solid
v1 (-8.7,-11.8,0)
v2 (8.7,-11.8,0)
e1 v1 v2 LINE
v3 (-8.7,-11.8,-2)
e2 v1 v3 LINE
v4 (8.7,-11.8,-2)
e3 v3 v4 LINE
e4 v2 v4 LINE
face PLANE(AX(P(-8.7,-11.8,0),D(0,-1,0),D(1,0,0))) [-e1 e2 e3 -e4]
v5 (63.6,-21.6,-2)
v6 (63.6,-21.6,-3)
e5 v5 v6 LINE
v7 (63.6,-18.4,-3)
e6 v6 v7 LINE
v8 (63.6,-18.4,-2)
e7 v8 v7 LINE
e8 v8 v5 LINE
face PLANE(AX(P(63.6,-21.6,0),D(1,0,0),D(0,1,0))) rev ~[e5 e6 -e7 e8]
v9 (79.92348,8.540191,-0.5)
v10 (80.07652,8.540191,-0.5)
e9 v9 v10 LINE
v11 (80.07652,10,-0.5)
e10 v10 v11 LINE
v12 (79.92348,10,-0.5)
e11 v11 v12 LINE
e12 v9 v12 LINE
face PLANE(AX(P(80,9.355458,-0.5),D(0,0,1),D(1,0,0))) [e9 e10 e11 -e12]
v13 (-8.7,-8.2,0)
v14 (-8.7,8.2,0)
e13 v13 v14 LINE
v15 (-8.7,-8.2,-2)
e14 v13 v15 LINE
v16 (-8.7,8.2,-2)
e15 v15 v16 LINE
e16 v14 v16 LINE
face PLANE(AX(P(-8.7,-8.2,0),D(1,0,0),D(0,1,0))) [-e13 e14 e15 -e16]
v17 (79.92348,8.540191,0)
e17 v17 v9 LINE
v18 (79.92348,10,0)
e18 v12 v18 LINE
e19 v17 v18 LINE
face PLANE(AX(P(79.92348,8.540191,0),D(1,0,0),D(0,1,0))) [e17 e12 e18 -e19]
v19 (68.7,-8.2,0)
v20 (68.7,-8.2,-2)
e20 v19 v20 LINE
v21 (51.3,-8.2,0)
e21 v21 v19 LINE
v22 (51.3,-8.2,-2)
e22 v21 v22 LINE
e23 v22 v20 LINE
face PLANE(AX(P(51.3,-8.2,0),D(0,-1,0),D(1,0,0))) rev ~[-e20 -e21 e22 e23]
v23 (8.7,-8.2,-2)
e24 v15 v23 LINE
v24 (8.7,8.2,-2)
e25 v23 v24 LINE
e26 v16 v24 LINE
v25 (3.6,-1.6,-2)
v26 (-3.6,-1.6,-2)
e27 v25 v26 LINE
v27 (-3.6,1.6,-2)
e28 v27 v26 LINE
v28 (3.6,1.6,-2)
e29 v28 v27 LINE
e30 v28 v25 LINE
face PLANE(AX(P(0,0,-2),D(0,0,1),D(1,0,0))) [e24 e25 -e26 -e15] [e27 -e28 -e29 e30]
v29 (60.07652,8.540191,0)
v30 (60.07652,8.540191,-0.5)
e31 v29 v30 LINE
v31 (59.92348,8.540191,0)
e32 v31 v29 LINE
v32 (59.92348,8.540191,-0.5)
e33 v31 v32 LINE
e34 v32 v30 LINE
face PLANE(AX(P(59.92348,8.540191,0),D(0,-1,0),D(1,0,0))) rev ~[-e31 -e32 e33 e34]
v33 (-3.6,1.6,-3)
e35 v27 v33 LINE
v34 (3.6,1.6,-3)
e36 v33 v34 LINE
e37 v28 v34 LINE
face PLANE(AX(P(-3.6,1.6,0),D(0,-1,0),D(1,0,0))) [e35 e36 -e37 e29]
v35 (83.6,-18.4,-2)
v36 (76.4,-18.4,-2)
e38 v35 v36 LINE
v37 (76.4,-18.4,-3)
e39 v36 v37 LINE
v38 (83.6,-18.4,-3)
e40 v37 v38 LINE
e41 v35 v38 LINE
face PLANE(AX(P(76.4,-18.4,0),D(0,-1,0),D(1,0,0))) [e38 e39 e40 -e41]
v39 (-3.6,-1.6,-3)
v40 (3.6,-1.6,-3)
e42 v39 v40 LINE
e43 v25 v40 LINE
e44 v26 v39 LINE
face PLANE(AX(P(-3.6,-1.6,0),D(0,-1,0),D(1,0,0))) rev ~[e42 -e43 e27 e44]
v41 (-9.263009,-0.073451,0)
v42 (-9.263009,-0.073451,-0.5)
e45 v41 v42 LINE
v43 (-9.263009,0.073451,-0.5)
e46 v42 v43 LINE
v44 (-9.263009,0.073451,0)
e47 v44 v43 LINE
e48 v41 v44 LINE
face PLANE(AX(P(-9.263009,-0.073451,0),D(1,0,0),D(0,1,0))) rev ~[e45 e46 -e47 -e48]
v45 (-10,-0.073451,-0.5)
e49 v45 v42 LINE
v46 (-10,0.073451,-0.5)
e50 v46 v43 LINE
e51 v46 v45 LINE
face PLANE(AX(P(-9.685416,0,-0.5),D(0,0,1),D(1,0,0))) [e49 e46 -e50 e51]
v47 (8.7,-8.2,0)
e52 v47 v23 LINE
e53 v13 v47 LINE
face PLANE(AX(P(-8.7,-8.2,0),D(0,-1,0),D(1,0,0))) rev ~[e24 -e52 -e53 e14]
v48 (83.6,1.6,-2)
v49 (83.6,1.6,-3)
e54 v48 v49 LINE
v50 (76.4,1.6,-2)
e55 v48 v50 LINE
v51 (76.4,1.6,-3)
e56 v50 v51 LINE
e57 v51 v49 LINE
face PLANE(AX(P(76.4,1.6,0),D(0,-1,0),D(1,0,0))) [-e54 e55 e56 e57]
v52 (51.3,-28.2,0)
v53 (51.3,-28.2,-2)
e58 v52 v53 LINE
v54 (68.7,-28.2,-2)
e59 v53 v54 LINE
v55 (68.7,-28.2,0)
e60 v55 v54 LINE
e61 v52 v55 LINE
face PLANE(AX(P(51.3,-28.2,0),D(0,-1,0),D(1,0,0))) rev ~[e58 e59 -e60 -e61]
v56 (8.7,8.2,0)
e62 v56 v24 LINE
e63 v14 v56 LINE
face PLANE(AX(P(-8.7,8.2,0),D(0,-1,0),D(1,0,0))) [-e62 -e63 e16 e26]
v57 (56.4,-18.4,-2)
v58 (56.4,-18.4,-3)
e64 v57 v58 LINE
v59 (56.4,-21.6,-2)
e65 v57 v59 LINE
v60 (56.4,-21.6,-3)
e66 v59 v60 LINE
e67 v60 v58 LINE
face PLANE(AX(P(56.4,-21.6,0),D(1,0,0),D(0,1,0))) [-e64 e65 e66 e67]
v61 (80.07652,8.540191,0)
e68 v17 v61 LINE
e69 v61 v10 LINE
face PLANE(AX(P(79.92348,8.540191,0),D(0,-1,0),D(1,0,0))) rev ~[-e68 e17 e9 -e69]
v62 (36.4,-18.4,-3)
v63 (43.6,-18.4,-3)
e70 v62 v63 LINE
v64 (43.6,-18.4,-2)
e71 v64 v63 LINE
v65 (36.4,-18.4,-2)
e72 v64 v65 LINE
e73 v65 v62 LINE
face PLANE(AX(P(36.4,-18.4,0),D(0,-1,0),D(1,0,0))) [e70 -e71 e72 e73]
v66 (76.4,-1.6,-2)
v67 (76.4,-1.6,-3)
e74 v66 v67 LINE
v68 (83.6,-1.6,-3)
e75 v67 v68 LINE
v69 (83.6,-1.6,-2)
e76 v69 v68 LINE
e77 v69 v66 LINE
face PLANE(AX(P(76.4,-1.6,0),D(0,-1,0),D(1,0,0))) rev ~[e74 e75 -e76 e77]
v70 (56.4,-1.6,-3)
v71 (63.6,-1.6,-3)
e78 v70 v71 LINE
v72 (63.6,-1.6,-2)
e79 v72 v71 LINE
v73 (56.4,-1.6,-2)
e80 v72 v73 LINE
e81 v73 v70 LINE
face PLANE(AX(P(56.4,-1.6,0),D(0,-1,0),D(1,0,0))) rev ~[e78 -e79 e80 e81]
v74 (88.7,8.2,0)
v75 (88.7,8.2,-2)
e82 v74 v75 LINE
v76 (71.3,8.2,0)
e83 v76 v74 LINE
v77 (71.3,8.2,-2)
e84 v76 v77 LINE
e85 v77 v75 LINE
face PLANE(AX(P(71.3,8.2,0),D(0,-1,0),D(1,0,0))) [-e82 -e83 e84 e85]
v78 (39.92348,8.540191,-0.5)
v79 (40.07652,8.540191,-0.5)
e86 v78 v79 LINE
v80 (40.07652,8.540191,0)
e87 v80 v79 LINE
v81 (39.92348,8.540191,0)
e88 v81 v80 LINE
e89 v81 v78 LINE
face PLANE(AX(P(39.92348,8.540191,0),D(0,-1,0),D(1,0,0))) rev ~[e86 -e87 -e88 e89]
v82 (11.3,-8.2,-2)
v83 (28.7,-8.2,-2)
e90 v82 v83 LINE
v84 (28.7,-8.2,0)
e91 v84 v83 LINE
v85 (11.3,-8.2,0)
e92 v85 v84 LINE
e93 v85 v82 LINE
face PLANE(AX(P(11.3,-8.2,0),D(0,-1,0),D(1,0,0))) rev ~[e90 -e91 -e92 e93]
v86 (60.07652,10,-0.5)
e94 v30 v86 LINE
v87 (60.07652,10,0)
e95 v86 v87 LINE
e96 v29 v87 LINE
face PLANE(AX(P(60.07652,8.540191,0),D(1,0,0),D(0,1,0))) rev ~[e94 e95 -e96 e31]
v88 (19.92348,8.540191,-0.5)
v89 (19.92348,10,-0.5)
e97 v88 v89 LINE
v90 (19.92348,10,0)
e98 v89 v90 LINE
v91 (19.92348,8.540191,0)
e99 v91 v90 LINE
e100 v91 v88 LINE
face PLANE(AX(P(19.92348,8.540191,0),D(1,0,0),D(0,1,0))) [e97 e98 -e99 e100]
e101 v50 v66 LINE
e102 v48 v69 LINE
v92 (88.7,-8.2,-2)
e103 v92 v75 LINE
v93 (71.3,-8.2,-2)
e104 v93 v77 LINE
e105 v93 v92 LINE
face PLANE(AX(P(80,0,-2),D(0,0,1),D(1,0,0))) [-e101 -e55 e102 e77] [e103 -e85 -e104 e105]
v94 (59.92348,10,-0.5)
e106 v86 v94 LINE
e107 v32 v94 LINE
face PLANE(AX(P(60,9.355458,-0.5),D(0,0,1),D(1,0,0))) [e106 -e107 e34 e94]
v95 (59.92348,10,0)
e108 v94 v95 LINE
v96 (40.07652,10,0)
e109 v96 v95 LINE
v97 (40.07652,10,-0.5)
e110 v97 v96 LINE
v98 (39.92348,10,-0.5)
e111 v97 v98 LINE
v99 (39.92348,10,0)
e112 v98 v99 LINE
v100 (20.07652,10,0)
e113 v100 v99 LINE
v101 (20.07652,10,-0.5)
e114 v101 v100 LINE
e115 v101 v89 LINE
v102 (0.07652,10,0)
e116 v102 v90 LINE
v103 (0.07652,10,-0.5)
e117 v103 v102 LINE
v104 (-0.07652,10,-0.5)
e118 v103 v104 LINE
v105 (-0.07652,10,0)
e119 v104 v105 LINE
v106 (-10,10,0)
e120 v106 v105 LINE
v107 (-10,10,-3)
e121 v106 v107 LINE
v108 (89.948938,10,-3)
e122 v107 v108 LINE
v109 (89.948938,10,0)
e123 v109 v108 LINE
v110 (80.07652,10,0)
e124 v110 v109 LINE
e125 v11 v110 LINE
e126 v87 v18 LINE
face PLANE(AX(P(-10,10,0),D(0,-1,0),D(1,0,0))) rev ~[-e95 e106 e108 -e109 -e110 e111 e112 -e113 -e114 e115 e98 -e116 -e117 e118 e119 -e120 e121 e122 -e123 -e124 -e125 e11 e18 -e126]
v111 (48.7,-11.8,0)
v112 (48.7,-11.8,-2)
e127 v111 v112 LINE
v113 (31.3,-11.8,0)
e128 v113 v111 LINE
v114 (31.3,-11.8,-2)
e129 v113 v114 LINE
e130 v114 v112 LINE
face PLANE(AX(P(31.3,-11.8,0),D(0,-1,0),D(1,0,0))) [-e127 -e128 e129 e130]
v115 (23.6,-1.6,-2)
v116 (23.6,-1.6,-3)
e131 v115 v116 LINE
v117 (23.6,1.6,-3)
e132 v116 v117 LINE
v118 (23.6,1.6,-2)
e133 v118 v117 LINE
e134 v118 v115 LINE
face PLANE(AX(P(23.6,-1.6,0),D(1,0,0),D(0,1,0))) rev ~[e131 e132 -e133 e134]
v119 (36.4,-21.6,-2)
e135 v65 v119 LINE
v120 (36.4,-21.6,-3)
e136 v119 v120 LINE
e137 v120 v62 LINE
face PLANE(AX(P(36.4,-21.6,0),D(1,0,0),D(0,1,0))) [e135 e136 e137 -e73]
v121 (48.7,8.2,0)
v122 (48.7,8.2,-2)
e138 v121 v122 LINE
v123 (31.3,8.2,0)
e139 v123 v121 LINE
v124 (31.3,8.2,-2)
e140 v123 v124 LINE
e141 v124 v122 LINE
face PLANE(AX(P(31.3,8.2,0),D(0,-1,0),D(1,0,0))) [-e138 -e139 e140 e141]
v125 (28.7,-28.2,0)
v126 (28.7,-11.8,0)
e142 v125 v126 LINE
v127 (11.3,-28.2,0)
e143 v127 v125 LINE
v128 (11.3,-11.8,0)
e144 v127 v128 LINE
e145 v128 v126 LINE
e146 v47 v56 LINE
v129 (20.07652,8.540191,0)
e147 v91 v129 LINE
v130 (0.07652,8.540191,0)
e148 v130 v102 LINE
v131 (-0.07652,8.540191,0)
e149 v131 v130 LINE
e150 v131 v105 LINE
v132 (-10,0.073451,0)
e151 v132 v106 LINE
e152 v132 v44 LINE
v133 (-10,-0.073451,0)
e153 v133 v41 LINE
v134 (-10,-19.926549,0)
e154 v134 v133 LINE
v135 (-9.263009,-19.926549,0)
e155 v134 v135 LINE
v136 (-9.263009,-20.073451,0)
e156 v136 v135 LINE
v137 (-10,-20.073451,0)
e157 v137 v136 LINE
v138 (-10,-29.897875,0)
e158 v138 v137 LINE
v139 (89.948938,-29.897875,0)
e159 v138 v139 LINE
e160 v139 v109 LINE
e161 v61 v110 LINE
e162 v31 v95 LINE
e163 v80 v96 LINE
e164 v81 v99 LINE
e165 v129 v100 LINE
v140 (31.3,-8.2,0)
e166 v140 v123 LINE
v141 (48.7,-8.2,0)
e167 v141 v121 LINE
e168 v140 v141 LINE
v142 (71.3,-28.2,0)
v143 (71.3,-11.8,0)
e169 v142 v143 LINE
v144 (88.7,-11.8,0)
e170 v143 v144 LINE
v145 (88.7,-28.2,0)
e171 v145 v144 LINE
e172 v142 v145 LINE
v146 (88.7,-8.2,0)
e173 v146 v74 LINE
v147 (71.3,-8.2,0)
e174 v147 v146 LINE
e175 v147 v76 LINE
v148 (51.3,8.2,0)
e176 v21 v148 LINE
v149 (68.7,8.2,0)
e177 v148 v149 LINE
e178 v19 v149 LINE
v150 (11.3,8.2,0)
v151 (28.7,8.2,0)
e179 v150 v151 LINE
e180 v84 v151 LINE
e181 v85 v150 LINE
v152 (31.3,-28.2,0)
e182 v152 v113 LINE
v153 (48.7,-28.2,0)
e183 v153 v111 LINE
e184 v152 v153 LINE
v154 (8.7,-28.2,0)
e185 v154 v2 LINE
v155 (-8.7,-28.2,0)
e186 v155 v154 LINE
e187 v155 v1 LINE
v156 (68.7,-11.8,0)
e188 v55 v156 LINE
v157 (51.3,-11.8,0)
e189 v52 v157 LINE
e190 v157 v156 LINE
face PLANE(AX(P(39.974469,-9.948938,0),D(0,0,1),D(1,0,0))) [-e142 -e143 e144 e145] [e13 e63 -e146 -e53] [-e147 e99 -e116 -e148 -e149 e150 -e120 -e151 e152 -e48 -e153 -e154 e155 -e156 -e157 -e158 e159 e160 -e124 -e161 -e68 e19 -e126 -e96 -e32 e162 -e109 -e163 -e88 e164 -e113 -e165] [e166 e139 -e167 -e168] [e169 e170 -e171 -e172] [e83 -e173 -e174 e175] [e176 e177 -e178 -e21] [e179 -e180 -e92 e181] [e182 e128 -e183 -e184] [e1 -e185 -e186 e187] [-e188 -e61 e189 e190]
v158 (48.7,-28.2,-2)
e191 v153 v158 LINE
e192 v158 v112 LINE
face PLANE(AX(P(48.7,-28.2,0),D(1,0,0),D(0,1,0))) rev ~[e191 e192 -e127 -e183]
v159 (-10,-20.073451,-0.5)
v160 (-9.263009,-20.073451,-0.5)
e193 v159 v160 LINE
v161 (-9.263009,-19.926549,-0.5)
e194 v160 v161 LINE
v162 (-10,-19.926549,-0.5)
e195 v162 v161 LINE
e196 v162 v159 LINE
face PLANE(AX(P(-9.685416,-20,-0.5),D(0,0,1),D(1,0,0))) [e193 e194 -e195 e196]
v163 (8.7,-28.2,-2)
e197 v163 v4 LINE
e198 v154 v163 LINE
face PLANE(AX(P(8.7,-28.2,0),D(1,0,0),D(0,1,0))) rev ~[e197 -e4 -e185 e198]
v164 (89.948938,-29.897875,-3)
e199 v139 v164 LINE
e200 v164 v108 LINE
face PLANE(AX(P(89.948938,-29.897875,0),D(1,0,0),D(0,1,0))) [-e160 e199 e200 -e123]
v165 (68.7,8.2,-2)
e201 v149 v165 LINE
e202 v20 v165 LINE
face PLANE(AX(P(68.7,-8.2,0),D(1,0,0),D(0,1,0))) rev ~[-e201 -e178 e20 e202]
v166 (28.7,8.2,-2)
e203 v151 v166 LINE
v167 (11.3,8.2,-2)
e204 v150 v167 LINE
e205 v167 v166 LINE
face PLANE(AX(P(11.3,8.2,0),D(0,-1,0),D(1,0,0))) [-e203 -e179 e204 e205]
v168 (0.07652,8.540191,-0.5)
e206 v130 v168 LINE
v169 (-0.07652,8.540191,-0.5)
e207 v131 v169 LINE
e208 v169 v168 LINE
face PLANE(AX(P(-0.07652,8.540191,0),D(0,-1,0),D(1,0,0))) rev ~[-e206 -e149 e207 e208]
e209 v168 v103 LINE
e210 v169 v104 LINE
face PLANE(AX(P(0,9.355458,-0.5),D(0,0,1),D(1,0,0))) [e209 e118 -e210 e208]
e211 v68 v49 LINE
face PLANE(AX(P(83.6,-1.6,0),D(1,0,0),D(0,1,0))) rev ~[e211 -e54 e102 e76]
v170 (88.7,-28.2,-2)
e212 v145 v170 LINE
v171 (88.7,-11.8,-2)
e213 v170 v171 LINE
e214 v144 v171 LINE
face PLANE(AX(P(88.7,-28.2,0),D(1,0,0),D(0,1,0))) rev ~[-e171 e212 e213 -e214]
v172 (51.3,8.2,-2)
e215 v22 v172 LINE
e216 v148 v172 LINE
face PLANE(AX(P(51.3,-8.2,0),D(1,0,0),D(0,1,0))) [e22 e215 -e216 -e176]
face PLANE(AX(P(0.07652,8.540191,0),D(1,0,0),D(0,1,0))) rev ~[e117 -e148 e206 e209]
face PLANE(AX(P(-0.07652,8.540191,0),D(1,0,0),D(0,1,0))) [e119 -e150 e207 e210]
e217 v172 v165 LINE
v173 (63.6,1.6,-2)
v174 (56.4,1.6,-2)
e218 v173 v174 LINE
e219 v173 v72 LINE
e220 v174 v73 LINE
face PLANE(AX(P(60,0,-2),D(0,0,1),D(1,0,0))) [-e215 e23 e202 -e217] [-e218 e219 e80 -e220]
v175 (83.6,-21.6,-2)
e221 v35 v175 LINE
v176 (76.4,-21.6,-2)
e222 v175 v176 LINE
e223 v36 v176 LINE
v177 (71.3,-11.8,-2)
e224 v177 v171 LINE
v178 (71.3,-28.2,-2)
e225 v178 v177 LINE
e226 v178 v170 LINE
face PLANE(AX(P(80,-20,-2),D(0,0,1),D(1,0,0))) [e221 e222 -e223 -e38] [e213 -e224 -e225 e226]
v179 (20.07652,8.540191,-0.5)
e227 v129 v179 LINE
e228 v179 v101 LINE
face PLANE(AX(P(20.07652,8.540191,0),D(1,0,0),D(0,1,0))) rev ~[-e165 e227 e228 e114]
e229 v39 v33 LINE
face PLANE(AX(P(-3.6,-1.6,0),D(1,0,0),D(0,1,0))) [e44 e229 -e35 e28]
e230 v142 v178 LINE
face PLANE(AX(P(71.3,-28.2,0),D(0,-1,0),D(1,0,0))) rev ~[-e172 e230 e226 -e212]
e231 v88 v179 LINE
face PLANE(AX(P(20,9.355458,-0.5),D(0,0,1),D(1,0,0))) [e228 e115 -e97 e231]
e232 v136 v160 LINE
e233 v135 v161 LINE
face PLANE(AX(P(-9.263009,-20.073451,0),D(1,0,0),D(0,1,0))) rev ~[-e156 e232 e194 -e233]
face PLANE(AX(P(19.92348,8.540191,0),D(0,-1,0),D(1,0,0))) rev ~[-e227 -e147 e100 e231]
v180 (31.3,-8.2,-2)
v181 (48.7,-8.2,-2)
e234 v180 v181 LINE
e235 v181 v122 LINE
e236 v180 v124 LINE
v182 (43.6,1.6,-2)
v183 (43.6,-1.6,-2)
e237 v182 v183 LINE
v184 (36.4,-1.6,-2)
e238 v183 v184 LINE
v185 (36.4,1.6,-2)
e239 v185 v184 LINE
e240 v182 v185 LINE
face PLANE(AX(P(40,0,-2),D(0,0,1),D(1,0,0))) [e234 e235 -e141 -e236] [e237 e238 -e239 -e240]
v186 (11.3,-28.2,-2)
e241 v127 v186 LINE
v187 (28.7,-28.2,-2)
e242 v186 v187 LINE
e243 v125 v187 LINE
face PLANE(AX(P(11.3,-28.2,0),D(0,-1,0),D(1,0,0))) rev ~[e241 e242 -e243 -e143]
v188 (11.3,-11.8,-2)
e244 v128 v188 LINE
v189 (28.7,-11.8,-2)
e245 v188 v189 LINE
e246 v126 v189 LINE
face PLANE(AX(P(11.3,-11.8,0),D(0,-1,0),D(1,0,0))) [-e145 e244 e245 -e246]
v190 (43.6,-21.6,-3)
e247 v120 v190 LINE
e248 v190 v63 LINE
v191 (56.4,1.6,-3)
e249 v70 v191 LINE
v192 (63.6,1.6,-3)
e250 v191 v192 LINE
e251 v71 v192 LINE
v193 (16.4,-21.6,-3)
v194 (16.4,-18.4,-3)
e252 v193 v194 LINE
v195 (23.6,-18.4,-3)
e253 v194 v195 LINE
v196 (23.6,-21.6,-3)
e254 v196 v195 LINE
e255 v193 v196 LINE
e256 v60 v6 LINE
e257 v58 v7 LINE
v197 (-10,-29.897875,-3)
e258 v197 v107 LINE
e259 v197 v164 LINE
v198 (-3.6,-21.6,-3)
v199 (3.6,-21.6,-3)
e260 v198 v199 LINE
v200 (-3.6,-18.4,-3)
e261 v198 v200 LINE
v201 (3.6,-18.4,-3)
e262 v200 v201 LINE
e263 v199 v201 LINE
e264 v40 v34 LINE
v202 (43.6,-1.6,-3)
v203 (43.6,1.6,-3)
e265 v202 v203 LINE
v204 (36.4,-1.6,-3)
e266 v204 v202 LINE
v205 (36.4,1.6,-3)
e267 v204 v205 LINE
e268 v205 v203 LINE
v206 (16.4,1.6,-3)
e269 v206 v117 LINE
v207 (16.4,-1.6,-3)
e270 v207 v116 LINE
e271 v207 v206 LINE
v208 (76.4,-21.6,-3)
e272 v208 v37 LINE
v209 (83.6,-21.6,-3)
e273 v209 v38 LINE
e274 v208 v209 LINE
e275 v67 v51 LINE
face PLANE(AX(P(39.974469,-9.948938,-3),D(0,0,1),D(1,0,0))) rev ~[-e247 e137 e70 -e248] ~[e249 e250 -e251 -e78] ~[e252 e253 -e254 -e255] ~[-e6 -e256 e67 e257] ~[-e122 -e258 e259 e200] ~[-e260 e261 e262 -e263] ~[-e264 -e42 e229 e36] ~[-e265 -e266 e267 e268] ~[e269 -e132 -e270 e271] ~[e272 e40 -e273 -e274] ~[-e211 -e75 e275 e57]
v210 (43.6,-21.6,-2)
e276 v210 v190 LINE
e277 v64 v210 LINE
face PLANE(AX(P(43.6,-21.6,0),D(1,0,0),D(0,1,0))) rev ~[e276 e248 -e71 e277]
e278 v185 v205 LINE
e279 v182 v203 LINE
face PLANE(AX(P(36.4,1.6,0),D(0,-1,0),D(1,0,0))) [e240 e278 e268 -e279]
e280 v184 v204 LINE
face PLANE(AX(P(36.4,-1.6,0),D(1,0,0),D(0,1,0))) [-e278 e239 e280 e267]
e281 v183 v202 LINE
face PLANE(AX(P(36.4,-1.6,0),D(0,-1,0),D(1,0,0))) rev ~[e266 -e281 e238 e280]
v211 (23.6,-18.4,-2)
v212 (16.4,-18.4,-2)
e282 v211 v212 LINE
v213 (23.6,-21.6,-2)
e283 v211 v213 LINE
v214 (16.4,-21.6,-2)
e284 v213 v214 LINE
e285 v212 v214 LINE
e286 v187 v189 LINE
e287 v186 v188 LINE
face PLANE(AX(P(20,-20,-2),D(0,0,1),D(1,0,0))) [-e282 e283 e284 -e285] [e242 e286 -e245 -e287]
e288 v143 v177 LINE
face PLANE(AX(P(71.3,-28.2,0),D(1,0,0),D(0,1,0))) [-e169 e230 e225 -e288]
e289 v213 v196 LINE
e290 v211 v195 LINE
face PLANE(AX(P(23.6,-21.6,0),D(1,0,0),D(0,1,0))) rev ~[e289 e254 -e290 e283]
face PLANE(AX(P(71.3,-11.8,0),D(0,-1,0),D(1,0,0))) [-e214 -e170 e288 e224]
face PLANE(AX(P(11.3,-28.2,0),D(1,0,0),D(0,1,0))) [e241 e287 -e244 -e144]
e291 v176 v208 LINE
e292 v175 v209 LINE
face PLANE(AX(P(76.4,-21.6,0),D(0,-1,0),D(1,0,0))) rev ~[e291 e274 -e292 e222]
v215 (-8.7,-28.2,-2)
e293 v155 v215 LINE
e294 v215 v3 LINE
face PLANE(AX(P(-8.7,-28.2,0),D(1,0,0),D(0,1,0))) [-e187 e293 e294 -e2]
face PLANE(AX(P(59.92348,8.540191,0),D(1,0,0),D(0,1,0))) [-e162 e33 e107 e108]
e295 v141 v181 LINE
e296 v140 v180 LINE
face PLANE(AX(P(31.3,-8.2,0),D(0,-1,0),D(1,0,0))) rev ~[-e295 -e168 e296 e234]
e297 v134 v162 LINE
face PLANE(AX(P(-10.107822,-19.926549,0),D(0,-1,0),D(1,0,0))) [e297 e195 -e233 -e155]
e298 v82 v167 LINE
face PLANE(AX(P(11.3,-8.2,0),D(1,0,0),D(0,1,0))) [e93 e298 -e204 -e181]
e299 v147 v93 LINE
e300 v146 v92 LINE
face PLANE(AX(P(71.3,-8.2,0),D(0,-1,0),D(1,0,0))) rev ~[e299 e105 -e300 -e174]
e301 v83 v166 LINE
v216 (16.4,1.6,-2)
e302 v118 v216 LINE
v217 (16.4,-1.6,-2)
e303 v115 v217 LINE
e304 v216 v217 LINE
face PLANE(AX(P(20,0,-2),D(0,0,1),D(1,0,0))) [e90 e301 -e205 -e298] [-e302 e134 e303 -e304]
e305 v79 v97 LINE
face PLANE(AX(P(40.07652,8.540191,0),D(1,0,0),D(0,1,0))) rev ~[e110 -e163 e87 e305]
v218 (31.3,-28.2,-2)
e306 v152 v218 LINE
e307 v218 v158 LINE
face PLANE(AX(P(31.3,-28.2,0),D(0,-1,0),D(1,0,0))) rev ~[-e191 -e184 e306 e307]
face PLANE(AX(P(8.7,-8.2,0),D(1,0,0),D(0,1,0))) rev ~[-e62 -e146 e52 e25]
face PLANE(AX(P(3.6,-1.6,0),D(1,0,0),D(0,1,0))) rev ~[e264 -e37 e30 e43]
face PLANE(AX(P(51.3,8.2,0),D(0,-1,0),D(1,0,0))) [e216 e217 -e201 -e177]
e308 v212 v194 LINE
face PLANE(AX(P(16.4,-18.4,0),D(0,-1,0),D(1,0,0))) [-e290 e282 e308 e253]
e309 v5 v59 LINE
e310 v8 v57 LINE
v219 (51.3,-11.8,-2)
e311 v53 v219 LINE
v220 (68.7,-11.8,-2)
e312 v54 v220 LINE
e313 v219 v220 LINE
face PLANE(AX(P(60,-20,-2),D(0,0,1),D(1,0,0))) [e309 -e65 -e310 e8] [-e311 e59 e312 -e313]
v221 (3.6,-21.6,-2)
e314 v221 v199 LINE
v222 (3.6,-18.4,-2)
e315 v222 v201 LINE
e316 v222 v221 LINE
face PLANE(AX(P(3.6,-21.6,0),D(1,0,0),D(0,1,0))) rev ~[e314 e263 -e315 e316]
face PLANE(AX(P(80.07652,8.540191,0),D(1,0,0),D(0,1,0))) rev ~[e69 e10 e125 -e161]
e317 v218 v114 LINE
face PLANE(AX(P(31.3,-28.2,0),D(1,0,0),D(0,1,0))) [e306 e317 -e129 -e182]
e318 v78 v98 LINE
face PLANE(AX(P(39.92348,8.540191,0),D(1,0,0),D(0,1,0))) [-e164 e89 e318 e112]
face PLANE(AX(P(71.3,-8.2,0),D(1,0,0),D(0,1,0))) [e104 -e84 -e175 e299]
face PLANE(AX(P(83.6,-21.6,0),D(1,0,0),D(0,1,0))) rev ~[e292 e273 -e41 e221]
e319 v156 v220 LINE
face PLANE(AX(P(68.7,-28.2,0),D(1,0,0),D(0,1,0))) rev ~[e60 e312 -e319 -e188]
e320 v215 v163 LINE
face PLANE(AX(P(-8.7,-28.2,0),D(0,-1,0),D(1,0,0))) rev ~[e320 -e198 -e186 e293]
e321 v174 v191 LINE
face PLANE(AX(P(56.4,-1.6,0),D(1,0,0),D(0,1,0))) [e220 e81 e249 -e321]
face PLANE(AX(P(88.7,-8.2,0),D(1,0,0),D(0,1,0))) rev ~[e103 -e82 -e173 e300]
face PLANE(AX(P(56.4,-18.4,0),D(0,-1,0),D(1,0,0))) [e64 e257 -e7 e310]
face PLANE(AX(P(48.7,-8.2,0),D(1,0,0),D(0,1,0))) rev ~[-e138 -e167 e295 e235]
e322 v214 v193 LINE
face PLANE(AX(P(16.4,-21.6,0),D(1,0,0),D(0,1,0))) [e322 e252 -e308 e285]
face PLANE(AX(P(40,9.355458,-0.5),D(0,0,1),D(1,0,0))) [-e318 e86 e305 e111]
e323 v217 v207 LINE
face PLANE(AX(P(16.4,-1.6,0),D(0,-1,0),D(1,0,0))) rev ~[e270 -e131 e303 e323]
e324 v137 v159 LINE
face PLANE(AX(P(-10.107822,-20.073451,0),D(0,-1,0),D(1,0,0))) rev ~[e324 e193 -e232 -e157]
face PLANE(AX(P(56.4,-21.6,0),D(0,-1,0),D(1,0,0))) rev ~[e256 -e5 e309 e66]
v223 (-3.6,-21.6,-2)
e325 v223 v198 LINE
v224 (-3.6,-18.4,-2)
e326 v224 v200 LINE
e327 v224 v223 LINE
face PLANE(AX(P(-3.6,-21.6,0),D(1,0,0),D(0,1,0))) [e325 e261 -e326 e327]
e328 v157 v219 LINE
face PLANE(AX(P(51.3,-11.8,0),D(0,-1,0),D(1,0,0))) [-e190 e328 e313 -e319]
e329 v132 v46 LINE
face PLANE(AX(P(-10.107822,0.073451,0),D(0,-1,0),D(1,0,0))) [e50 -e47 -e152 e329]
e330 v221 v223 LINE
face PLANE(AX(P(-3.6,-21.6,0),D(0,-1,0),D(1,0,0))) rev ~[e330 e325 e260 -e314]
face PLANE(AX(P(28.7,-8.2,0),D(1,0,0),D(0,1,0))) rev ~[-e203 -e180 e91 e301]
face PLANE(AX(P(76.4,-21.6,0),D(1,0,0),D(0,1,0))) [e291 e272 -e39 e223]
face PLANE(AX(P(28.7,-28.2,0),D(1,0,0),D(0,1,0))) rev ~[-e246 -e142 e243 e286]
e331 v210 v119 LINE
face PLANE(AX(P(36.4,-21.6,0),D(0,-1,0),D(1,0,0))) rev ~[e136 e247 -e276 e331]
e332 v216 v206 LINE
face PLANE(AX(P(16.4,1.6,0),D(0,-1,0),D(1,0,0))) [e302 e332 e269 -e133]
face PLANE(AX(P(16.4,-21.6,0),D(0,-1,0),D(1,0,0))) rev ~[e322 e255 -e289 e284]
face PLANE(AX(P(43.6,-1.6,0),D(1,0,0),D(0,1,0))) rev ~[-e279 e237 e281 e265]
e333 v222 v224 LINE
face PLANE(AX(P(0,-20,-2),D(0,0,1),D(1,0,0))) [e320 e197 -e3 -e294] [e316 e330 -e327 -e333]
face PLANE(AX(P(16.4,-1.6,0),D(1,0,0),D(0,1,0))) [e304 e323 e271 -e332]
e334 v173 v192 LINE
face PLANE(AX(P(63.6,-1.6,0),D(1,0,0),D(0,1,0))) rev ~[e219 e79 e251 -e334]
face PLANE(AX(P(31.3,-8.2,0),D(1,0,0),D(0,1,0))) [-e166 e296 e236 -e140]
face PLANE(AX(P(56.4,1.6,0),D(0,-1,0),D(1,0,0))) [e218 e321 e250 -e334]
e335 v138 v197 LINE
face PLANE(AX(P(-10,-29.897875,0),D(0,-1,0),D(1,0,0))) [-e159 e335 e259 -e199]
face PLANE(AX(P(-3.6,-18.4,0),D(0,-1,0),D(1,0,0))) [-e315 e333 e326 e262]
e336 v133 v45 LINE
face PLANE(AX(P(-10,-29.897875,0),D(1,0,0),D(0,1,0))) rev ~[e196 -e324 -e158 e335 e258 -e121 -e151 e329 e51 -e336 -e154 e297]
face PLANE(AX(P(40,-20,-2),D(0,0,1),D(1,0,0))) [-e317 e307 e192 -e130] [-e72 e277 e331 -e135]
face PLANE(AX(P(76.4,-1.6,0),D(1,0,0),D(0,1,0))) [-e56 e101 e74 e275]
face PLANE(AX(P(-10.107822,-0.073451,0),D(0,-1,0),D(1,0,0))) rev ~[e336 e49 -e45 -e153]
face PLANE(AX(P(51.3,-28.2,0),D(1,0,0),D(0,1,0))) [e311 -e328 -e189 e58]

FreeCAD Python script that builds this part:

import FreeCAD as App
import Part
import Sketcher

doc = App.newDocument("Part")
body = doc.addObject("PartDesign::Body", "Body")

sketch1 = body.newObject("Sketcher::SketchObject", "Sketch")
sketch1.AttachmentSupport = (doc.getObject("XY_Plane"), [""])
sketch1.MapMode = "FlatFace"
sketch1.addGeometry([
    Part.LineSegment(App.Vector(-10, 10, 0), App.Vector(-10, -30, 0)),
    Part.LineSegment(App.Vector(-10, -30, 0), App.Vector(90, -30, 0)),
    Part.LineSegment(App.Vector(90, -30, 0), App.Vector(90, 10, 0)),
    Part.LineSegment(App.Vector(90, 10, 0), App.Vector(-10, 10, 0)),
], False)
sketch1.addConstraint([
    Sketcher.Constraint("Coincident", 0, 2, 1, 1),
    Sketcher.Constraint("Coincident", 1, 2, 2, 1),
    Sketcher.Constraint("Coincident", 2, 2, 3, 1),
    Sketcher.Constraint("Coincident", 3, 2, 0, 1),
    Sketcher.Constraint("Vertical", 0),
    Sketcher.Constraint("Horizontal", 1),
    Sketcher.Constraint("Vertical", 2),
    Sketcher.Constraint("Horizontal", 3),
    Sketcher.Constraint("DistanceX", 0, 2, -1, 1, 10.0),
    Sketcher.Constraint("DistanceY", -1, 1, 2, 2, 10.0),
    Sketcher.Constraint("DistanceX", 1, 1, 1, 2, 99.948938),
    Sketcher.Constraint("DistanceY", 0, 2, 0, 1, 39.897875),
])
pad1 = body.newObject("PartDesign::Pad", "Pad")
pad1.Profile = sketch1
pad1.Length = 3
pad1.Reversed = True

sketch2 = body.newObject("Sketcher::SketchObject", "Sketch001")
sketch2.AttachmentSupport = (doc.getObject("XY_Plane"), [""])
sketch2.MapMode = "FlatFace"
sketch2.addGeometry([
    Part.LineSegment(App.Vector(16.4, 1.6, 0), App.Vector(16.4, -1.6, 0)),
    Part.LineSegment(App.Vector(16.4, -1.6, 0), App.Vector(23.6, -1.6, 0)),
    Part.LineSegment(App.Vector(23.6, -1.6, 0), App.Vector(23.6, 1.6, 0)),
    Part.LineSegment(App.Vector(23.6, 1.6, 0), App.Vector(16.4, 1.6, 0)),
    Part.LineSegment(App.Vector(-3.6, 1.6, 0), App.Vector(-3.6, -1.6, 0)),
    Part.LineSegment(App.Vector(-3.6, -1.6, 0), App.Vector(3.6, -1.6, 0)),
    Part.LineSegment(App.Vector(3.6, -1.6, 0), App.Vector(3.6, 1.6, 0)),
    Part.LineSegment(App.Vector(3.6, 1.6, 0), App.Vector(-3.6, 1.6, 0)),
    Part.LineSegment(App.Vector(36.4, 1.6, 0), App.Vector(36.4, -1.6, 0)),
    Part.LineSegment(App.Vector(36.4, -1.6, 0), App.Vector(43.6, -1.6, 0)),
    Part.LineSegment(App.Vector(43.6, -1.6, 0), App.Vector(43.6, 1.6, 0)),
    Part.LineSegment(App.Vector(43.6, 1.6, 0), App.Vector(36.4, 1.6, 0)),
    Part.LineSegment(App.Vector(56.4, 1.6, 0), App.Vector(56.4, -1.6, 0)),
    Part.LineSegment(App.Vector(56.4, -1.6, 0), App.Vector(63.6, -1.6, 0)),
    Part.LineSegment(App.Vector(63.6, -1.6, 0), App.Vector(63.6, 1.6, 0)),
    Part.LineSegment(App.Vector(63.6, 1.6, 0), App.Vector(56.4, 1.6, 0)),
    Part.LineSegment(App.Vector(76.4, 1.6, 0), App.Vector(76.4, -1.6, 0)),
    Part.LineSegment(App.Vector(76.4, -1.6, 0), App.Vector(83.6, -1.6, 0)),
    Part.LineSegment(App.Vector(83.6, -1.6, 0), App.Vector(83.6, 1.6, 0)),
    Part.LineSegment(App.Vector(83.6, 1.6, 0), App.Vector(76.4, 1.6, 0)),
    Part.LineSegment(App.Vector(16.4, -18.4, 0), App.Vector(16.4, -21.6, 0)),
    Part.LineSegment(App.Vector(16.4, -21.6, 0), App.Vector(23.6, -21.6, 0)),
    Part.LineSegment(App.Vector(23.6, -21.6, 0), App.Vector(23.6, -18.4, 0)),
    Part.LineSegment(App.Vector(23.6, -18.4, 0), App.Vector(16.4, -18.4, 0)),
    Part.LineSegment(App.Vector(36.4, -18.4, 0), App.Vector(36.4, -21.6, 0)),
    Part.LineSegment(App.Vector(36.4, -21.6, 0), App.Vector(43.6, -21.6, 0)),
    Part.LineSegment(App.Vector(43.6, -21.6, 0), App.Vector(43.6, -18.4, 0)),
    Part.LineSegment(App.Vector(43.6, -18.4, 0), App.Vector(36.4, -18.4, 0)),
    Part.LineSegment(App.Vector(56.4, -18.4, 0), App.Vector(56.4, -21.6, 0)),
    Part.LineSegment(App.Vector(56.4, -21.6, 0), App.Vector(63.6, -21.6, 0)),
    Part.LineSegment(App.Vector(63.6, -21.6, 0), App.Vector(63.6, -18.4, 0)),
    Part.LineSegment(App.Vector(63.6, -18.4, 0), App.Vector(56.4, -18.4, 0)),
    Part.LineSegment(App.Vector(76.4, -18.4, 0), App.Vector(76.4, -21.6, 0)),
    Part.LineSegment(App.Vector(76.4, -21.6, 0), App.Vector(83.6, -21.6, 0)),
    Part.LineSegment(App.Vector(83.6, -21.6, 0), App.Vector(83.6, -18.4, 0)),
    Part.LineSegment(App.Vector(83.6, -18.4, 0), App.Vector(76.4, -18.4, 0)),
    Part.LineSegment(App.Vector(-3.6, -18.4, 0), App.Vector(-3.6, -21.6, 0)),
    Part.LineSegment(App.Vector(-3.6, -21.6, 0), App.Vector(3.6, -21.6, 0)),
    Part.LineSegment(App.Vector(3.6, -21.6, 0), App.Vector(3.6, -18.4, 0)),
    Part.LineSegment(App.Vector(3.6, -18.4, 0), App.Vector(-3.6, -18.4, 0)),
], False)
sketch2.addConstraint([
    Sketcher.Constraint("Coincident", 0, 2, 1, 1),
    Sketcher.Constraint("Coincident", 1, 2, 2, 1),
    Sketcher.Constraint("Coincident", 2, 2, 3, 1),
    Sketcher.Constraint("Coincident", 3, 2, 0, 1),
    Sketcher.Constraint("Coincident", 4, 2, 5, 1),
    Sketcher.Constraint("Coincident", 5, 2, 6, 1),
    Sketcher.Constraint("Coincident", 6, 2, 7, 1),
    Sketcher.Constraint("Coincident", 7, 2, 4, 1),
    Sketcher.Constraint("Coincident", 8, 2, 9, 1),
    Sketcher.Constraint("Coincident", 9, 2, 10, 1),
    Sketcher.Constraint("Coincident", 10, 2, 11, 1),
    Sketcher.Constraint("Coincident", 11, 2, 8, 1),
    Sketcher.Constraint("Coincident", 12, 2, 13, 1),
    Sketcher.Constraint("Coincident", 13, 2, 14, 1),
    Sketcher.Constraint("Coincident", 14, 2, 15, 1),
    Sketcher.Constraint("Coincident", 15, 2, 12, 1),
    Sketcher.Constraint("Coincident", 16, 2, 17, 1),
    Sketcher.Constraint("Coincident", 17, 2, 18, 1),
    Sketcher.Constraint("Coincident", 18, 2, 19, 1),
    Sketcher.Constraint("Coincident", 19, 2, 16, 1),
    Sketcher.Constraint("Coincident", 20, 2, 21, 1),
    Sketcher.Constraint("Coincident", 21, 2, 22, 1),
    Sketcher.Constraint("Coincident", 22, 2, 23, 1),
    Sketcher.Constraint("Coincident", 23, 2, 20, 1),
    Sketcher.Constraint("Coincident", 24, 2, 25, 1),
    Sketcher.Constraint("Coincident", 25, 2, 26, 1),
    Sketcher.Constraint("Coincident", 26, 2, 27, 1),
    Sketcher.Constraint("Coincident", 27, 2, 24, 1),
    Sketcher.Constraint("Coincident", 28, 2, 29, 1),
    Sketcher.Constraint("Coincident", 29, 2, 30, 1),
    Sketcher.Constraint("Coincident", 30, 2, 31, 1),
    Sketcher.Constraint("Coincident", 31, 2, 28, 1),
    Sketcher.Constraint("Coincident", 32, 2, 33, 1),
    Sketcher.Constraint("Coincident", 33, 2, 34, 1),
    Sketcher.Constraint("Coincident", 34, 2, 35, 1),
    Sketcher.Constraint("Coincident", 35, 2, 32, 1),
    Sketcher.Constraint("Coincident", 36, 2, 37, 1),
    Sketcher.Constraint("Coincident", 37, 2, 38, 1),
    Sketcher.Constraint("Coincident", 38, 2, 39, 1),
    Sketcher.Constraint("Coincident", 39, 2, 36, 1),
    Sketcher.Constraint("Vertical", 0),
    Sketcher.Constraint("Horizontal", 1),
    Sketcher.Constraint("Vertical", 2),
    Sketcher.Constraint("Horizontal", 3),
    Sketcher.Constraint("Vertical", 4),
    Sketcher.Constraint("Horizontal", 5),
    Sketcher.Constraint("Vertical", 6),
    Sketcher.Constraint("Horizontal", 7),
    Sketcher.Constraint("Vertical", 8),
    Sketcher.Constraint("Horizontal", 9),
    Sketcher.Constraint("Vertical", 10),
    Sketcher.Constraint("Horizontal", 11),
    Sketcher.Constraint("Vertical", 12),
    Sketcher.Constraint("Horizontal", 13),
    Sketcher.Constraint("Vertical", 14),
    Sketcher.Constraint("Horizontal", 15),
    Sketcher.Constraint("Vertical", 16),
    Sketcher.Constraint("Horizontal", 17),
    Sketcher.Constraint("Vertical", 18),
    Sketcher.Constraint("Horizontal", 19),
    Sketcher.Constraint("Vertical", 20),
    Sketcher.Constraint("Horizontal", 21),
    Sketcher.Constraint("Vertical", 22),
    Sketcher.Constraint("Horizontal", 23),
    Sketcher.Constraint("Vertical", 24),
    Sketcher.Constraint("Horizontal", 25),
    Sketcher.Constraint("Vertical", 26),
    Sketcher.Constraint("Horizontal", 27),
    Sketcher.Constraint("Vertical", 28),
    Sketcher.Constraint("Horizontal", 29),
    Sketcher.Constraint("Vertical", 30),
    Sketcher.Constraint("Horizontal", 31),
    Sketcher.Constraint("Vertical", 32),
    Sketcher.Constraint("Horizontal", 33),
    Sketcher.Constraint("Vertical", 34),
    Sketcher.Constraint("Horizontal", 35),
    Sketcher.Constraint("Vertical", 36),
    Sketcher.Constraint("Horizontal", 37),
    Sketcher.Constraint("Vertical", 38),
    Sketcher.Constraint("Horizontal", 39),
    Sketcher.Constraint("Symmetric", 4, 2, 6, 2, -1, 1),
    Sketcher.Constraint("Horizontal", 1, 2, 4, 2),
    Sketcher.Constraint("Horizontal", 3, 2, 6, 2),
    Sketcher.Constraint("Horizontal", 5, 2, 8, 2),
    Sketcher.Constraint("Horizontal", 7, 2, 10, 2),
    Sketcher.Constraint("Horizontal", 9, 2, 12, 2),
    Sketcher.Constraint("Horizontal", 11, 2, 14, 2),
    Sketcher.Constraint("Horizontal", 13, 2, 16, 2),
    Sketcher.Constraint("Horizontal", 15, 2, 18, 2),
    Sketcher.Constraint("Horizontal", 21, 2, 24, 2),
    Sketcher.Constraint("Horizontal", 23, 2, 26, 2),
    Sketcher.Constraint("Horizontal", 25, 2, 28, 2),
    Sketcher.Constraint("Horizontal", 27, 2, 30, 2),
    Sketcher.Constraint("Horizontal", 29, 2, 32, 2),
    Sketcher.Constraint("Horizontal", 31, 2, 34, 2),
    Sketcher.Constraint("Horizontal", 33, 2, 36, 2),
    Sketcher.Constraint("Horizontal", 35, 2, 38, 2),
    Sketcher.Constraint("Vertical", 3, 2, 20, 2),
    Sketcher.Constraint("Vertical", 2, 2, 21, 2),
    Sketcher.Constraint("Vertical", 11, 2, 24, 2),
    Sketcher.Constraint("Vertical", 10, 2, 25, 2),
    Sketcher.Constraint("Vertical", 15, 2, 28, 2),
    Sketcher.Constraint("Vertical", 14, 2, 29, 2),
    Sketcher.Constraint("Vertical", 19, 2, 32, 2),
    Sketcher.Constraint("Vertical", 18, 2, 33, 2),
    Sketcher.Constraint("Vertical", 7, 2, 36, 2),
    Sketcher.Constraint("Vertical", 6, 2, 37, 2),
    Sketcher.Constraint("Equal", 3, 5),
    Sketcher.Constraint("Equal", 7, 9),
    Sketcher.Constraint("Equal", 11, 13),
    Sketcher.Constraint("Equal", 15, 17),
    Sketcher.Constraint("Equal", 18, 20),
    Sketcher.Constraint("DistanceX", 1, 1, 1, 2, 7.2),
    Sketcher.Constraint("DistanceY", 0, 2, 0, 1, 3.2),
    Sketcher.Constraint("DistanceX", 4, 2, 0, 2, 20.0),
    Sketcher.Constraint("DistanceX", 0, 2, 8, 2, 20.0),
    Sketcher.Constraint("DistanceX", 8, 2, 12, 2, 20.0),
    Sketcher.Constraint("DistanceX", 12, 2, 16, 2, 20.0),
    Sketcher.Constraint("DistanceY", 20, 2, 0, 2, 20.0),
])
pocket1 = body.newObject("PartDesign::Pocket", "Pocket")
pocket1.Profile = sketch2
pocket1.Type = "ThroughAll"
pocket1.Midplane = True

sketch3 = body.newObject("Sketcher::SketchObject", "Sketch002")
sketch3.AttachmentSupport = (doc.getObject("XY_Plane"), [""])
sketch3.MapMode = "FlatFace"
sketch3.addGeometry([
    Part.LineSegment(App.Vector(11, 8, 0), App.Vector(11, -8, 0)),
    Part.LineSegment(App.Vector(11, -8, 0), App.Vector(29, -8, 0)),
    Part.LineSegment(App.Vector(29, -8, 0), App.Vector(29, 8, 0)),
    Part.LineSegment(App.Vector(29, 8, 0), App.Vector(11, 8, 0)),
    Part.LineSegment(App.Vector(-9, 8, 0), App.Vector(-9, -8, 0)),
    Part.LineSegment(App.Vector(-9, -8, 0), App.Vector(9, -8, 0)),
    Part.LineSegment(App.Vector(9, -8, 0), App.Vector(9, 8, 0)),
    Part.LineSegment(App.Vector(9, 8, 0), App.Vector(-9, 8, 0)),
    Part.LineSegment(App.Vector(31, 8, 0), App.Vector(31, -8, 0)),
    Part.LineSegment(App.Vector(31, -8, 0), App.Vector(49, -8, 0)),
    Part.LineSegment(App.Vector(49, -8, 0), App.Vector(49, 8, 0)),
    Part.LineSegment(App.Vector(49, 8, 0), App.Vector(31, 8, 0)),
    Part.LineSegment(App.Vector(51, 8, 0), App.Vector(51, -8, 0)),
    Part.LineSegment(App.Vector(51, -8, 0), App.Vector(69, -8, 0)),
    Part.LineSegment(App.Vector(69, -8, 0), App.Vector(69, 8, 0)),
    Part.LineSegment(App.Vector(69, 8, 0), App.Vector(51, 8, 0)),
    Part.LineSegment(App.Vector(71, 8, 0), App.Vector(71, -8, 0)),
    Part.LineSegment(App.Vector(71, -8, 0), App.Vector(89, -8, 0)),
    Part.LineSegment(App.Vector(89, -8, 0), App.Vector(89, 8, 0)),
    Part.LineSegment(App.Vector(89, 8, 0), App.Vector(71, 8, 0)),
    Part.LineSegment(App.Vector(11, -12, 0), App.Vector(11, -28, 0)),
    Part.LineSegment(App.Vector(11, -28, 0), App.Vector(29, -28, 0)),
    Part.LineSegment(App.Vector(29, -28, 0), App.Vector(29, -12, 0)),
    Part.LineSegment(App.Vector(29, -12, 0), App.Vector(11, -12, 0)),
    Part.LineSegment(App.Vector(31, -12, 0), App.Vector(31, -28, 0)),
    Part.LineSegment(App.Vector(31, -28, 0), App.Vector(49, -28, 0)),
    Part.LineSegment(App.Vector(49, -28, 0), App.Vector(49, -12, 0)),
    Part.LineSegment(App.Vector(49, -12, 0), App.Vector(31, -12, 0)),
    Part.LineSegment(App.Vector(51, -12, 0), App.Vector(51, -28, 0)),
    Part.LineSegment(App.Vector(51, -28, 0), App.Vector(69, -28, 0)),
    Part.LineSegment(App.Vector(69, -28, 0), App.Vector(69, -12, 0)),
    Part.LineSegment(App.Vector(69, -12, 0), App.Vector(51, -12, 0)),
    Part.LineSegment(App.Vector(71, -12, 0), App.Vector(71, -28, 0)),
    Part.LineSegment(App.Vector(71, -28, 0), App.Vector(89, -28, 0)),
    Part.LineSegment(App.Vector(89, -28, 0), App.Vector(89, -12, 0)),
    Part.LineSegment(App.Vector(89, -12, 0), App.Vector(71, -12, 0)),
    Part.LineSegment(App.Vector(-9, -12, 0), App.Vector(-9, -28, 0)),
    Part.LineSegment(App.Vector(-9, -28, 0), App.Vector(9, -28, 0)),
    Part.LineSegment(App.Vector(9, -28, 0), App.Vector(9, -12, 0)),
    Part.LineSegment(App.Vector(9, -12, 0), App.Vector(-9, -12, 0)),
], False)
sketch3.addConstraint([
    Sketcher.Constraint("Coincident", 0, 2, 1, 1),
    Sketcher.Constraint("Coincident", 1, 2, 2, 1),
    Sketcher.Constraint("Coincident", 2, 2, 3, 1),
    Sketcher.Constraint("Coincident", 3, 2, 0, 1),
    Sketcher.Constraint("Coincident", 4, 2, 5, 1),
    Sketcher.Constraint("Coincident", 5, 2, 6, 1),
    Sketcher.Constraint("Coincident", 6, 2, 7, 1),
    Sketcher.Constraint("Coincident", 7, 2, 4, 1),
    Sketcher.Constraint("Coincident", 8, 2, 9, 1),
    Sketcher.Constraint("Coincident", 9, 2, 10, 1),
    Sketcher.Constraint("Coincident", 10, 2, 11, 1),
    Sketcher.Constraint("Coincident", 11, 2, 8, 1),
    Sketcher.Constraint("Coincident", 12, 2, 13, 1),
    Sketcher.Constraint("Coincident", 13, 2, 14, 1),
    Sketcher.Constraint("Coincident", 14, 2, 15, 1),
    Sketcher.Constraint("Coincident", 15, 2, 12, 1),
    Sketcher.Constraint("Coincident", 16, 2, 17, 1),
    Sketcher.Constraint("Coincident", 17, 2, 18, 1),
    Sketcher.Constraint("Coincident", 18, 2, 19, 1),
    Sketcher.Constraint("Coincident", 19, 2, 16, 1),
    Sketcher.Constraint("Coincident", 20, 2, 21, 1),
    Sketcher.Constraint("Coincident", 21, 2, 22, 1),
    Sketcher.Constraint("Coincident", 22, 2, 23, 1),
    Sketcher.Constraint("Coincident", 23, 2, 20, 1),
    Sketcher.Constraint("Coincident", 24, 2, 25, 1),
    Sketcher.Constraint("Coincident", 25, 2, 26, 1),
    Sketcher.Constraint("Coincident", 26, 2, 27, 1),
    Sketcher.Constraint("Coincident", 27, 2, 24, 1),
    Sketcher.Constraint("Coincident", 28, 2, 29, 1),
    Sketcher.Constraint("Coincident", 29, 2, 30, 1),
    Sketcher.Constraint("Coincident", 30, 2, 31, 1),
    Sketcher.Constraint("Coincident", 31, 2, 28, 1),
    Sketcher.Constraint("Coincident", 32, 2, 33, 1),
    Sketcher.Constraint("Coincident", 33, 2, 34, 1),
    Sketcher.Constraint("Coincident", 34, 2, 35, 1),
    Sketcher.Constraint("Coincident", 35, 2, 32, 1),
    Sketcher.Constraint("Coincident", 36, 2, 37, 1),
    Sketcher.Constraint("Coincident", 37, 2, 38, 1),
    Sketcher.Constraint("Coincident", 38, 2, 39, 1),
    Sketcher.Constraint("Coincident", 39, 2, 36, 1),
    Sketcher.Constraint("Vertical", 0),
    Sketcher.Constraint("Horizontal", 1),
    Sketcher.Constraint("Vertical", 2),
    Sketcher.Constraint("Horizontal", 3),
    Sketcher.Constraint("Vertical", 4),
    Sketcher.Constraint("Horizontal", 5),
    Sketcher.Constraint("Vertical", 6),
    Sketcher.Constraint("Horizontal", 7),
    Sketcher.Constraint("Vertical", 8),
    Sketcher.Constraint("Horizontal", 9),
    Sketcher.Constraint("Vertical", 10),
    Sketcher.Constraint("Horizontal", 11),
    Sketcher.Constraint("Vertical", 12),
    Sketcher.Constraint("Horizontal", 13),
    Sketcher.Constraint("Vertical", 14),
    Sketcher.Constraint("Horizontal", 15),
    Sketcher.Constraint("Vertical", 16),
    Sketcher.Constraint("Horizontal", 17),
    Sketcher.Constraint("Vertical", 18),
    Sketcher.Constraint("Horizontal", 19),
    Sketcher.Constraint("Vertical", 20),
    Sketcher.Constraint("Horizontal", 21),
    Sketcher.Constraint("Vertical", 22),
    Sketcher.Constraint("Horizontal", 23),
    Sketcher.Constraint("Vertical", 24),
    Sketcher.Constraint("Horizontal", 25),
    Sketcher.Constraint("Vertical", 26),
    Sketcher.Constraint("Horizontal", 27),
    Sketcher.Constraint("Vertical", 28),
    Sketcher.Constraint("Horizontal", 29),
    Sketcher.Constraint("Vertical", 30),
    Sketcher.Constraint("Horizontal", 31),
    Sketcher.Constraint("Vertical", 32),
    Sketcher.Constraint("Horizontal", 33),
    Sketcher.Constraint("Vertical", 34),
    Sketcher.Constraint("Horizontal", 35),
    Sketcher.Constraint("Vertical", 36),
    Sketcher.Constraint("Horizontal", 37),
    Sketcher.Constraint("Vertical", 38),
    Sketcher.Constraint("Horizontal", 39),
    Sketcher.Constraint("Symmetric", 4, 2, 6, 2, -1, 1),
    Sketcher.Constraint("Horizontal", 1, 2, 4, 2),
    Sketcher.Constraint("Horizontal", 3, 2, 6, 2),
    Sketcher.Constraint("Horizontal", 5, 2, 8, 2),
    Sketcher.Constraint("Horizontal", 7, 2, 10, 2),
    Sketcher.Constraint("Horizontal", 9, 2, 12, 2),
    Sketcher.Constraint("Horizontal", 11, 2, 14, 2),
    Sketcher.Constraint("Horizontal", 13, 2, 16, 2),
    Sketcher.Constraint("Horizontal", 15, 2, 18, 2),
    Sketcher.Constraint("Horizontal", 21, 2, 24, 2),
    Sketcher.Constraint("Horizontal", 23, 2, 26, 2),
    Sketcher.Constraint("Horizontal", 25, 2, 28, 2),
    Sketcher.Constraint("Horizontal", 27, 2, 30, 2),
    Sketcher.Constraint("Horizontal", 29, 2, 32, 2),
    Sketcher.Constraint("Horizontal", 31, 2, 34, 2),
    Sketcher.Constraint("Horizontal", 33, 2, 36, 2),
    Sketcher.Constraint("Horizontal", 35, 2, 38, 2),
    Sketcher.Constraint("Vertical", 3, 2, 20, 2),
    Sketcher.Constraint("Vertical", 2, 2, 21, 2),
    Sketcher.Constraint("Vertical", 11, 2, 24, 2),
    Sketcher.Constraint("Vertical", 10, 2, 25, 2),
    Sketcher.Constraint("Vertical", 15, 2, 28, 2),
    Sketcher.Constraint("Vertical", 14, 2, 29, 2),
    Sketcher.Constraint("Vertical", 19, 2, 32, 2),
    Sketcher.Constraint("Vertical", 18, 2, 33, 2),
    Sketcher.Constraint("Vertical", 7, 2, 36, 2),
    Sketcher.Constraint("Vertical", 6, 2, 37, 2),
    Sketcher.Constraint("Equal", 3, 5),
    Sketcher.Constraint("Equal", 7, 9),
    Sketcher.Constraint("Equal", 11, 13),
    Sketcher.Constraint("Equal", 15, 17),
    Sketcher.Constraint("Equal", 18, 20),
    Sketcher.Constraint("DistanceX", 1, 1, 1, 2, 17.4),
    Sketcher.Constraint("DistanceY", 0, 2, 0, 1, 16.4),
    Sketcher.Constraint("DistanceX", 4, 2, 0, 2, 20.0),
    Sketcher.Constraint("DistanceX", 0, 2, 8, 2, 20.0),
    Sketcher.Constraint("DistanceX", 8, 2, 12, 2, 20.0),
    Sketcher.Constraint("DistanceX", 12, 2, 16, 2, 20.0),
    Sketcher.Constraint("DistanceY", 20, 2, 0, 2, 20.0),
])
pocket2 = body.newObject("PartDesign::Pocket", "Pocket001")
pocket2.Profile = sketch3
pocket2.Length = 2

sketch4 = body.newObject("Sketcher::SketchObject", "Sketch003")
sketch4.AttachmentSupport = (doc.getObject("XY_Plane"), [""])
sketch4.MapMode = "FlatFace"
sketch4.addGeometry([
    Part.LineSegment(App.Vector(-0.08, 10.17, 0), App.Vector(-0.08, 8.54, 0)),
    Part.LineSegment(App.Vector(-0.08, 8.54, 0), App.Vector(0.08, 8.54, 0)),
    Part.LineSegment(App.Vector(0.08, 8.54, 0), App.Vector(0.08, 10.17, 0)),
    Part.LineSegment(App.Vector(0.08, 10.17, 0), App.Vector(-0.08, 10.17, 0)),
    Part.LineSegment(App.Vector(19.92, 10.17, 0), App.Vector(19.92, 8.54, 0)),
    Part.LineSegment(App.Vector(19.92, 8.54, 0), App.Vector(20.08, 8.54, 0)),
    Part.LineSegment(App.Vector(20.08, 8.54, 0), App.Vector(20.08, 10.17, 0)),
    Part.LineSegment(App.Vector(20.08, 10.17, 0), App.Vector(19.92, 10.17, 0)),
    Part.LineSegment(App.Vector(39.92, 10.17, 0), App.Vector(39.92, 8.54, 0)),
    Part.LineSegment(App.Vector(39.92, 8.54, 0), App.Vector(40.08, 8.54, 0)),
    Part.LineSegment(App.Vector(40.08, 8.54, 0), App.Vector(40.08, 10.17, 0)),
    Part.LineSegment(App.Vector(40.08, 10.17, 0), App.Vector(39.92, 10.17, 0)),
    Part.LineSegment(App.Vector(59.92, 10.17, 0), App.Vector(59.92, 8.54, 0)),
    Part.LineSegment(App.Vector(59.92, 8.54, 0), App.Vector(60.08, 8.54, 0)),
    Part.LineSegment(App.Vector(60.08, 8.54, 0), App.Vector(60.08, 10.17, 0)),
    Part.LineSegment(App.Vector(60.08, 10.17, 0), App.Vector(59.92, 10.17, 0)),
    Part.LineSegment(App.Vector(79.92, 10.17, 0), App.Vector(79.92, 8.54, 0)),
    Part.LineSegment(App.Vector(79.92, 8.54, 0), App.Vector(80.08, 8.54, 0)),
    Part.LineSegment(App.Vector(80.08, 8.54, 0), App.Vector(80.08, 10.17, 0)),
    Part.LineSegment(App.Vector(80.08, 10.17, 0), App.Vector(79.92, 10.17, 0)),
    Part.LineSegment(App.Vector(-10.11, 0.07, 0), App.Vector(-10.11, -0.07, 0)),
    Part.LineSegment(App.Vector(-10.11, -0.07, 0), App.Vector(-9.26, -0.07, 0)),
    Part.LineSegment(App.Vector(-9.26, -0.07, 0), App.Vector(-9.26, 0.07, 0)),
    Part.LineSegment(App.Vector(-9.26, 0.07, 0), App.Vector(-10.11, 0.07, 0)),
    Part.LineSegment(App.Vector(-10.11, -19.93, 0), App.Vector(-10.11, -20.07, 0)),
    Part.LineSegment(App.Vector(-10.11, -20.07, 0), App.Vector(-9.26, -20.07, 0)),
    Part.LineSegment(App.Vector(-9.26, -20.07, 0), App.Vector(-9.26, -19.93, 0)),
    Part.LineSegment(App.Vector(-9.26, -19.93, 0), App.Vector(-10.11, -19.93, 0)),
], False)
sketch4.addConstraint([
    Sketcher.Constraint("Coincident", 0, 2, 1, 1),
    Sketcher.Constraint("Coincident", 1, 2, 2, 1),
    Sketcher.Constraint("Coincident", 2, 2, 3, 1),
    Sketcher.Constraint("Coincident", 3, 2, 0, 1),
    Sketcher.Constraint("Coincident", 4, 2, 5, 1),
    Sketcher.Constraint("Coincident", 5, 2, 6, 1),
    Sketcher.Constraint("Coincident", 6, 2, 7, 1),
    Sketcher.Constraint("Coincident", 7, 2, 4, 1),
    Sketcher.Constraint("Coincident", 8, 2, 9, 1),
    Sketcher.Constraint("Coincident", 9, 2, 10, 1),
    Sketcher.Constraint("Coincident", 10, 2, 11, 1),
    Sketcher.Constraint("Coincident", 11, 2, 8, 1),
    Sketcher.Constraint("Coincident", 12, 2, 13, 1),
    Sketcher.Constraint("Coincident", 13, 2, 14, 1),
    Sketcher.Constraint("Coincident", 14, 2, 15, 1),
    Sketcher.Constraint("Coincident", 15, 2, 12, 1),
    Sketcher.Constraint("Coincident", 16, 2, 17, 1),
    Sketcher.Constraint("Coincident", 17, 2, 18, 1),
    Sketcher.Constraint("Coincident", 18, 2, 19, 1),
    Sketcher.Constraint("Coincident", 19, 2, 16, 1),
    Sketcher.Constraint("Coincident", 20, 2, 21, 1),
    Sketcher.Constraint("Coincident", 21, 2, 22, 1),
    Sketcher.Constraint("Coincident", 22, 2, 23, 1),
    Sketcher.Constraint("Coincident", 23, 2, 20, 1),
    Sketcher.Constraint("Coincident", 24, 2, 25, 1),
    Sketcher.Constraint("Coincident", 25, 2, 26, 1),
    Sketcher.Constraint("Coincident", 26, 2, 27, 1),
    Sketcher.Constraint("Coincident", 27, 2, 24, 1),
    Sketcher.Constraint("Vertical", 0),
    Sketcher.Constraint("Horizontal", 1),
    Sketcher.Constraint("Vertical", 2),
    Sketcher.Constraint("Horizontal", 3),
    Sketcher.Constraint("Vertical", 4),
    Sketcher.Constraint("Horizontal", 5),
    Sketcher.Constraint("Vertical", 6),
    Sketcher.Constraint("Horizontal", 7),
    Sketcher.Constraint("Vertical", 8),
    Sketcher.Constraint("Horizontal", 9),
    Sketcher.Constraint("Vertical", 10),
    Sketcher.Constraint("Horizontal", 11),
    Sketcher.Constraint("Vertical", 12),
    Sketcher.Constraint("Horizontal", 13),
    Sketcher.Constraint("Vertical", 14),
    Sketcher.Constraint("Horizontal", 15),
    Sketcher.Constraint("Vertical", 16),
    Sketcher.Constraint("Horizontal", 17),
    Sketcher.Constraint("Vertical", 18),
    Sketcher.Constraint("Horizontal", 19),
    Sketcher.Constraint("Vertical", 20),
    Sketcher.Constraint("Horizontal", 21),
    Sketcher.Constraint("Vertical", 22),
    Sketcher.Constraint("Horizontal", 23),
    Sketcher.Constraint("Vertical", 24),
    Sketcher.Constraint("Horizontal", 25),
    Sketcher.Constraint("Vertical", 26),
    Sketcher.Constraint("Horizontal", 27),
    Sketcher.Constraint("Horizontal", 1, 2, 4, 2),
    Sketcher.Constraint("Horizontal", 3, 2, 6, 2),
    Sketcher.Constraint("Horizontal", 5, 2, 8, 2),
    Sketcher.Constraint("Horizontal", 7, 2, 10, 2),
    Sketcher.Constraint("Horizontal", 9, 2, 12, 2),
    Sketcher.Constraint("Horizontal", 11, 2, 14, 2),
    Sketcher.Constraint("Horizontal", 13, 2, 16, 2),
    Sketcher.Constraint("Horizontal", 15, 2, 18, 2),
    Sketcher.Constraint("Vertical", 23, 2, 24, 2),
    Sketcher.Constraint("Vertical", 22, 2, 25, 2),
    Sketcher.Constraint("Equal", 3, 5),
    Sketcher.Constraint("Equal", 7, 9),
    Sketcher.Constraint("Equal", 11, 13),
    Sketcher.Constraint("Equal", 15, 17),
    Sketcher.Constraint("Equal", 22, 24),
    Sketcher.Constraint("DistanceX", 0, 2, 4, 2, 20.0),
    Sketcher.Constraint("DistanceX", 4, 2, 8, 2, 20.0),
    Sketcher.Constraint("DistanceX", 8, 2, 12, 2, 20.0),
    Sketcher.Constraint("DistanceX", 12, 2, 16, 2, 20.0),
    Sketcher.Constraint("DistanceY", 24, 2, 20, 2, 20.0),
    Sketcher.Constraint("DistanceX", 1, 1, 1, 2, 0.15304),
    Sketcher.Constraint("DistanceX", 21, 1, 21, 2, 0.844813),
    Sketcher.Constraint("DistanceY", 0, 2, 0, 1, 1.630534),
    Sketcher.Constraint("DistanceY", 20, 2, 20, 1, 0.146903),
    Sketcher.Constraint("DistanceX", 0, 2, -1, 1, 0.07652),
    Sketcher.Constraint("DistanceY", -1, 1, 0, 2, 8.540191),
    Sketcher.Constraint("DistanceY", 20, 2, -1, 1, 0.073451),
    Sketcher.Constraint("DistanceX", 21, 2, -1, 1, 9.263009),
])
pocket3 = body.newObject("PartDesign::Pocket", "Pocket002")
pocket3.Profile = sketch4
pocket3.Length = 0.5

doc.recompute()
